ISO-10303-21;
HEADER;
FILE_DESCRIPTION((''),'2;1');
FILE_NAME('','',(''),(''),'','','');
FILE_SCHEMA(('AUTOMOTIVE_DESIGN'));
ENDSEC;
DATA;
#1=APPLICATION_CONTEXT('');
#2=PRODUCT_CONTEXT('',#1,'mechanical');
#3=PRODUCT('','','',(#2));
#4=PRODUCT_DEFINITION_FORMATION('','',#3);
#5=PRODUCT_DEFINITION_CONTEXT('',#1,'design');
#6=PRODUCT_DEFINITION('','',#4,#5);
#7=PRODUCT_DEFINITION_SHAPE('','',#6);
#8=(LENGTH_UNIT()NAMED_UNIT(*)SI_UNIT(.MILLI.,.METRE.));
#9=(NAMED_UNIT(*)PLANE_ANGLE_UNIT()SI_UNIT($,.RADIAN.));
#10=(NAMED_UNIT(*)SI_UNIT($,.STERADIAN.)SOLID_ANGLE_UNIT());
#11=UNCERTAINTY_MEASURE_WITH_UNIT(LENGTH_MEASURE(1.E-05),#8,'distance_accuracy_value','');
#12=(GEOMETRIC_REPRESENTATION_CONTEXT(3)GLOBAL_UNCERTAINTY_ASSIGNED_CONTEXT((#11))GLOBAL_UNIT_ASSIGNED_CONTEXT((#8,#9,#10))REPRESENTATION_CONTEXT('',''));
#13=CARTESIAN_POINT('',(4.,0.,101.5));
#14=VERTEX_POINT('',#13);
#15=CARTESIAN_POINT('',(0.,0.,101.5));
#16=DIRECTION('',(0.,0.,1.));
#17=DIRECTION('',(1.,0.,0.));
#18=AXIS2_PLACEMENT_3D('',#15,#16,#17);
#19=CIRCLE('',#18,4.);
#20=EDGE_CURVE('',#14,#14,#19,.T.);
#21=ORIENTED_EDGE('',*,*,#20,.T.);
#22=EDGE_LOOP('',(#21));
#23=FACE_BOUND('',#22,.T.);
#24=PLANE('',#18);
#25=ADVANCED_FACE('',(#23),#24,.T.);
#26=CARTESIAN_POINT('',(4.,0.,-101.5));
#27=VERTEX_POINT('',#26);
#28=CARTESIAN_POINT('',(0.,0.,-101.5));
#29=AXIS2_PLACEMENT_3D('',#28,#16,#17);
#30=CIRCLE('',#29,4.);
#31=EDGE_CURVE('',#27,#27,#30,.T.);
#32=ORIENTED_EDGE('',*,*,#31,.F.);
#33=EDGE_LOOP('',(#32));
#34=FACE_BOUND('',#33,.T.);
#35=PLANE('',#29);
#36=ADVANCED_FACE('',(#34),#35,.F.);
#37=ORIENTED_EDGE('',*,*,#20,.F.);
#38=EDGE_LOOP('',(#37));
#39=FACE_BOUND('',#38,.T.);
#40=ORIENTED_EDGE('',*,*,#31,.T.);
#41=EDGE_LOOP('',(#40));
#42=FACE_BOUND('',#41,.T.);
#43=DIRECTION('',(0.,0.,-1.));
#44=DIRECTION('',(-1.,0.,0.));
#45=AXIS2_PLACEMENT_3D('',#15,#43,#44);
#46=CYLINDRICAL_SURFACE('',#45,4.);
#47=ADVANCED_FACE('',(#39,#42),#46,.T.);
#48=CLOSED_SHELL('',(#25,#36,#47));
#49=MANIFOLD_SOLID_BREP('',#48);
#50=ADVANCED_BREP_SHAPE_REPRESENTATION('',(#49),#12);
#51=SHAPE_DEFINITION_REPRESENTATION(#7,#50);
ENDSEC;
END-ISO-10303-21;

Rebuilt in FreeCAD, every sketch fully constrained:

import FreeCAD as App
import Part
import Sketcher

V = App.Vector

doc = App.newDocument("Part")
params = doc.addObject("Spreadsheet::Sheet", "Params")
for row, (alias, value) in enumerate([
    ("sketch1_diameter", "8 mm"),
    ("pad1_length", "203 mm"),
], start=1):
    params.set(f"A{row}", alias)
    params.set(f"B{row}", "=" + value)
    params.setAlias(f"B{row}", alias)

body = doc.addObject("PartDesign::Body", "Body")

sketch1 = body.newObject("Sketcher::SketchObject", "Sketch")
sketch1.AttachmentSupport = (doc.getObject("XY_Plane"), [""])
sketch1.MapMode = "FlatFace"
sketch1.addGeometry(Part.Circle(V(0, 0, 0), V(0, 0, 1), 4), False)
sketch1.addConstraint([
    Sketcher.Constraint("Coincident", 0, 3, -1, 1),
    Sketcher.Constraint("Diameter", 0, 8.0),
])
sketch1.setExpression("Constraints[1]", "Params.sketch1_diameter")
pad1 = body.newObject("PartDesign::Pad", "Pad")
pad1.Profile = sketch1
pad1.setExpression("Length", "Params.pad1_length")
pad1.Midplane = True

doc.recompute()
